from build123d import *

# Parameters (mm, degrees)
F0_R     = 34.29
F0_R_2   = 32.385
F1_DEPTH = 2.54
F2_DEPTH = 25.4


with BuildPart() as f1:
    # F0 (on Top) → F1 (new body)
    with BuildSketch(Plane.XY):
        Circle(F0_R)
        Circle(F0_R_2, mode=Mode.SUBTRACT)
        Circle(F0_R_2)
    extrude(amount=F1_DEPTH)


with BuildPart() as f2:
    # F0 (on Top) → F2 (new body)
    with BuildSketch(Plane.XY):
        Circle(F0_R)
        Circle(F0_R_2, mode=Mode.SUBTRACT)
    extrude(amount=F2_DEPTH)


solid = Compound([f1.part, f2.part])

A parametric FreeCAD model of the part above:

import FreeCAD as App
import Part
import Sketcher
Q = App.Units.Quantity

doc = App.newDocument("Part")
body = doc.addObject("PartDesign::Body", "Body")

sketch1 = doc.addObject("Sketcher::SketchObject", "Sketch")
body.addObject(sketch1)
sketch1.AttachmentSupport = (doc.XY_Plane, [""])
sketch1.MapMode = "FlatFace"
sketch1.addGeometry(Part.Circle(App.Vector(0, 0, 0), App.Vector(0, 0, 1), 34), False)
sketch1.addConstraint([
    Sketcher.Constraint("Coincident", 0, 3, -1, 1),
    Sketcher.Constraint("Diameter", 0, Q("2.7 in")),
])
pad1 = doc.addObject("PartDesign::Pad", "Pad")
body.addObject(pad1)
pad1.Profile = sketch1
pad1.Length = Q("0.1 in")
body2 = doc.addObject("PartDesign::Body", "Body001")

sketch2 = doc.addObject("Sketcher::SketchObject", "Sketch001")
body2.addObject(sketch2)
sketch2.AttachmentSupport = (doc.getObject("XY_Plane001"), [""])
sketch2.MapMode = "FlatFace"
sketch2.addGeometry([
    Part.Circle(App.Vector(0, 0, 0), App.Vector(0, 0, 1), 34),
    Part.Circle(App.Vector(0, 0, 0), App.Vector(0, 0, 1), 32),
], False)
sketch2.addConstraint([
    Sketcher.Constraint("Coincident", 0, 3, -1, 1),
    Sketcher.Constraint("Coincident", 1, 3, -1, 1),
    Sketcher.Constraint("Diameter", 0, Q("2.7 in")),
    Sketcher.Constraint("Diameter", 1, Q("2.55 in")),
])
pad2 = doc.addObject("PartDesign::Pad", "Pad001")
body2.addObject(pad2)
pad2.Profile = sketch2
pad2.Length = Q("1 in")

doc.recompute()
